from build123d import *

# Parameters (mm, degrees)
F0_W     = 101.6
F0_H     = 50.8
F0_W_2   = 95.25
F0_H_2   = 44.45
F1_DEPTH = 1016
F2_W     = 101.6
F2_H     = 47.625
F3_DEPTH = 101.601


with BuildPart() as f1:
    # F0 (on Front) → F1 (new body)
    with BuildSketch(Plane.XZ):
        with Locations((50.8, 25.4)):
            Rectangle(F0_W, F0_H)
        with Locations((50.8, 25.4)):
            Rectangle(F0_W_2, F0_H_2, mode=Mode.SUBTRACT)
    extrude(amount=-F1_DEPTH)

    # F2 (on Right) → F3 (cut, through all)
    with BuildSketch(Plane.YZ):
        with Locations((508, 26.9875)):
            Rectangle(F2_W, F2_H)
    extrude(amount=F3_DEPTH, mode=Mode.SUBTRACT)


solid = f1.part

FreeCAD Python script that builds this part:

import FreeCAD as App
import Part
import Sketcher
Q = App.Units.Quantity


def add_polygon(sketch, points):
    """Adds a closed chain of lines whose ends are joined by coincident constraints."""
    first, n = sketch.GeometryCount, len(points)
    for a, b in zip(points, points[1:] + points[:1]):
        sketch.addGeometry(Part.LineSegment(App.Vector(*a, 0), App.Vector(*b, 0)), False)
    for i in range(n):
        sketch.addConstraint(Sketcher.Constraint("Coincident", first + i, 2, first + (i + 1) % n, 1))

doc = App.newDocument("Part")
body = doc.addObject("PartDesign::Body", "Body")

sketch1 = body.newObject("Sketcher::SketchObject", "Sketch")
sketch1.AttachmentSupport = (doc.getObject("XZ_Plane"), [""])
sketch1.MapMode = "FlatFace"
add_polygon(sketch1, [(0, 50.8), (0, 0), (101.6, 0), (101.6, 50.8)])
add_polygon(sketch1, [(98.425, 3.175), (3.175, 3.175), (3.175, 47.625), (98.425, 47.625)])
sketch1.addConstraint([
    Sketcher.Constraint("Vertical", 0),
    Sketcher.Constraint("Horizontal", 1),
    Sketcher.Constraint("Vertical", 2),
    Sketcher.Constraint("Horizontal", 3),
    Sketcher.Constraint("Horizontal", 4),
    Sketcher.Constraint("Vertical", 5),
    Sketcher.Constraint("Horizontal", 6),
    Sketcher.Constraint("Vertical", 7),
    Sketcher.Constraint("Coincident", 0, 2, -1, 1),
    Sketcher.Constraint("DistanceX", 1, 1, 1, 2, Q("4 in")),
    Sketcher.Constraint("DistanceY", 0, 2, 0, 1, Q("2 in")),
    Sketcher.Constraint("DistanceX", 4, 2, 4, 1, Q("3.75 in")),
    Sketcher.Constraint("DistanceY", 5, 1, 5, 2, Q("1.75 in")),
    Sketcher.Constraint("DistanceX", -1, 1, 4, 2, Q("0.125 in")),
    Sketcher.Constraint("DistanceY", -1, 1, 4, 2, Q("0.125 in")),
])
pad1 = body.newObject("PartDesign::Pad", "Pad")
pad1.Profile = sketch1
pad1.Length = Q("40 in")
pad1.Reversed = True

sketch2 = body.newObject("Sketcher::SketchObject", "Sketch001")
sketch2.AttachmentSupport = (doc.getObject("YZ_Plane"), [""])
sketch2.MapMode = "FlatFace"
add_polygon(sketch2, [(457.2, 50.8), (457.2, 3.175), (558.8, 3.175), (558.8, 50.8)])
sketch2.addConstraint([
    Sketcher.Constraint("Vertical", 0),
    Sketcher.Constraint("Horizontal", 1),
    Sketcher.Constraint("Vertical", 2),
    Sketcher.Constraint("Horizontal", 3),
    Sketcher.Constraint("DistanceX", 1, 1, 1, 2, Q("4 in")),
    Sketcher.Constraint("DistanceX", -1, 1, 0, 2, Q("18 in")),
    Sketcher.Constraint("DistanceY", -1, 1, 2, 2, Q("2 in")),
    Sketcher.Constraint("DistanceY", 0, 2, 0, 1, Q("1.875 in")),
])
pocket1 = body.newObject("PartDesign::Pocket", "Pocket")
pocket1.Profile = sketch2
pocket1.Type = "ThroughAll"
pocket1.Reversed = True

doc.recompute()
